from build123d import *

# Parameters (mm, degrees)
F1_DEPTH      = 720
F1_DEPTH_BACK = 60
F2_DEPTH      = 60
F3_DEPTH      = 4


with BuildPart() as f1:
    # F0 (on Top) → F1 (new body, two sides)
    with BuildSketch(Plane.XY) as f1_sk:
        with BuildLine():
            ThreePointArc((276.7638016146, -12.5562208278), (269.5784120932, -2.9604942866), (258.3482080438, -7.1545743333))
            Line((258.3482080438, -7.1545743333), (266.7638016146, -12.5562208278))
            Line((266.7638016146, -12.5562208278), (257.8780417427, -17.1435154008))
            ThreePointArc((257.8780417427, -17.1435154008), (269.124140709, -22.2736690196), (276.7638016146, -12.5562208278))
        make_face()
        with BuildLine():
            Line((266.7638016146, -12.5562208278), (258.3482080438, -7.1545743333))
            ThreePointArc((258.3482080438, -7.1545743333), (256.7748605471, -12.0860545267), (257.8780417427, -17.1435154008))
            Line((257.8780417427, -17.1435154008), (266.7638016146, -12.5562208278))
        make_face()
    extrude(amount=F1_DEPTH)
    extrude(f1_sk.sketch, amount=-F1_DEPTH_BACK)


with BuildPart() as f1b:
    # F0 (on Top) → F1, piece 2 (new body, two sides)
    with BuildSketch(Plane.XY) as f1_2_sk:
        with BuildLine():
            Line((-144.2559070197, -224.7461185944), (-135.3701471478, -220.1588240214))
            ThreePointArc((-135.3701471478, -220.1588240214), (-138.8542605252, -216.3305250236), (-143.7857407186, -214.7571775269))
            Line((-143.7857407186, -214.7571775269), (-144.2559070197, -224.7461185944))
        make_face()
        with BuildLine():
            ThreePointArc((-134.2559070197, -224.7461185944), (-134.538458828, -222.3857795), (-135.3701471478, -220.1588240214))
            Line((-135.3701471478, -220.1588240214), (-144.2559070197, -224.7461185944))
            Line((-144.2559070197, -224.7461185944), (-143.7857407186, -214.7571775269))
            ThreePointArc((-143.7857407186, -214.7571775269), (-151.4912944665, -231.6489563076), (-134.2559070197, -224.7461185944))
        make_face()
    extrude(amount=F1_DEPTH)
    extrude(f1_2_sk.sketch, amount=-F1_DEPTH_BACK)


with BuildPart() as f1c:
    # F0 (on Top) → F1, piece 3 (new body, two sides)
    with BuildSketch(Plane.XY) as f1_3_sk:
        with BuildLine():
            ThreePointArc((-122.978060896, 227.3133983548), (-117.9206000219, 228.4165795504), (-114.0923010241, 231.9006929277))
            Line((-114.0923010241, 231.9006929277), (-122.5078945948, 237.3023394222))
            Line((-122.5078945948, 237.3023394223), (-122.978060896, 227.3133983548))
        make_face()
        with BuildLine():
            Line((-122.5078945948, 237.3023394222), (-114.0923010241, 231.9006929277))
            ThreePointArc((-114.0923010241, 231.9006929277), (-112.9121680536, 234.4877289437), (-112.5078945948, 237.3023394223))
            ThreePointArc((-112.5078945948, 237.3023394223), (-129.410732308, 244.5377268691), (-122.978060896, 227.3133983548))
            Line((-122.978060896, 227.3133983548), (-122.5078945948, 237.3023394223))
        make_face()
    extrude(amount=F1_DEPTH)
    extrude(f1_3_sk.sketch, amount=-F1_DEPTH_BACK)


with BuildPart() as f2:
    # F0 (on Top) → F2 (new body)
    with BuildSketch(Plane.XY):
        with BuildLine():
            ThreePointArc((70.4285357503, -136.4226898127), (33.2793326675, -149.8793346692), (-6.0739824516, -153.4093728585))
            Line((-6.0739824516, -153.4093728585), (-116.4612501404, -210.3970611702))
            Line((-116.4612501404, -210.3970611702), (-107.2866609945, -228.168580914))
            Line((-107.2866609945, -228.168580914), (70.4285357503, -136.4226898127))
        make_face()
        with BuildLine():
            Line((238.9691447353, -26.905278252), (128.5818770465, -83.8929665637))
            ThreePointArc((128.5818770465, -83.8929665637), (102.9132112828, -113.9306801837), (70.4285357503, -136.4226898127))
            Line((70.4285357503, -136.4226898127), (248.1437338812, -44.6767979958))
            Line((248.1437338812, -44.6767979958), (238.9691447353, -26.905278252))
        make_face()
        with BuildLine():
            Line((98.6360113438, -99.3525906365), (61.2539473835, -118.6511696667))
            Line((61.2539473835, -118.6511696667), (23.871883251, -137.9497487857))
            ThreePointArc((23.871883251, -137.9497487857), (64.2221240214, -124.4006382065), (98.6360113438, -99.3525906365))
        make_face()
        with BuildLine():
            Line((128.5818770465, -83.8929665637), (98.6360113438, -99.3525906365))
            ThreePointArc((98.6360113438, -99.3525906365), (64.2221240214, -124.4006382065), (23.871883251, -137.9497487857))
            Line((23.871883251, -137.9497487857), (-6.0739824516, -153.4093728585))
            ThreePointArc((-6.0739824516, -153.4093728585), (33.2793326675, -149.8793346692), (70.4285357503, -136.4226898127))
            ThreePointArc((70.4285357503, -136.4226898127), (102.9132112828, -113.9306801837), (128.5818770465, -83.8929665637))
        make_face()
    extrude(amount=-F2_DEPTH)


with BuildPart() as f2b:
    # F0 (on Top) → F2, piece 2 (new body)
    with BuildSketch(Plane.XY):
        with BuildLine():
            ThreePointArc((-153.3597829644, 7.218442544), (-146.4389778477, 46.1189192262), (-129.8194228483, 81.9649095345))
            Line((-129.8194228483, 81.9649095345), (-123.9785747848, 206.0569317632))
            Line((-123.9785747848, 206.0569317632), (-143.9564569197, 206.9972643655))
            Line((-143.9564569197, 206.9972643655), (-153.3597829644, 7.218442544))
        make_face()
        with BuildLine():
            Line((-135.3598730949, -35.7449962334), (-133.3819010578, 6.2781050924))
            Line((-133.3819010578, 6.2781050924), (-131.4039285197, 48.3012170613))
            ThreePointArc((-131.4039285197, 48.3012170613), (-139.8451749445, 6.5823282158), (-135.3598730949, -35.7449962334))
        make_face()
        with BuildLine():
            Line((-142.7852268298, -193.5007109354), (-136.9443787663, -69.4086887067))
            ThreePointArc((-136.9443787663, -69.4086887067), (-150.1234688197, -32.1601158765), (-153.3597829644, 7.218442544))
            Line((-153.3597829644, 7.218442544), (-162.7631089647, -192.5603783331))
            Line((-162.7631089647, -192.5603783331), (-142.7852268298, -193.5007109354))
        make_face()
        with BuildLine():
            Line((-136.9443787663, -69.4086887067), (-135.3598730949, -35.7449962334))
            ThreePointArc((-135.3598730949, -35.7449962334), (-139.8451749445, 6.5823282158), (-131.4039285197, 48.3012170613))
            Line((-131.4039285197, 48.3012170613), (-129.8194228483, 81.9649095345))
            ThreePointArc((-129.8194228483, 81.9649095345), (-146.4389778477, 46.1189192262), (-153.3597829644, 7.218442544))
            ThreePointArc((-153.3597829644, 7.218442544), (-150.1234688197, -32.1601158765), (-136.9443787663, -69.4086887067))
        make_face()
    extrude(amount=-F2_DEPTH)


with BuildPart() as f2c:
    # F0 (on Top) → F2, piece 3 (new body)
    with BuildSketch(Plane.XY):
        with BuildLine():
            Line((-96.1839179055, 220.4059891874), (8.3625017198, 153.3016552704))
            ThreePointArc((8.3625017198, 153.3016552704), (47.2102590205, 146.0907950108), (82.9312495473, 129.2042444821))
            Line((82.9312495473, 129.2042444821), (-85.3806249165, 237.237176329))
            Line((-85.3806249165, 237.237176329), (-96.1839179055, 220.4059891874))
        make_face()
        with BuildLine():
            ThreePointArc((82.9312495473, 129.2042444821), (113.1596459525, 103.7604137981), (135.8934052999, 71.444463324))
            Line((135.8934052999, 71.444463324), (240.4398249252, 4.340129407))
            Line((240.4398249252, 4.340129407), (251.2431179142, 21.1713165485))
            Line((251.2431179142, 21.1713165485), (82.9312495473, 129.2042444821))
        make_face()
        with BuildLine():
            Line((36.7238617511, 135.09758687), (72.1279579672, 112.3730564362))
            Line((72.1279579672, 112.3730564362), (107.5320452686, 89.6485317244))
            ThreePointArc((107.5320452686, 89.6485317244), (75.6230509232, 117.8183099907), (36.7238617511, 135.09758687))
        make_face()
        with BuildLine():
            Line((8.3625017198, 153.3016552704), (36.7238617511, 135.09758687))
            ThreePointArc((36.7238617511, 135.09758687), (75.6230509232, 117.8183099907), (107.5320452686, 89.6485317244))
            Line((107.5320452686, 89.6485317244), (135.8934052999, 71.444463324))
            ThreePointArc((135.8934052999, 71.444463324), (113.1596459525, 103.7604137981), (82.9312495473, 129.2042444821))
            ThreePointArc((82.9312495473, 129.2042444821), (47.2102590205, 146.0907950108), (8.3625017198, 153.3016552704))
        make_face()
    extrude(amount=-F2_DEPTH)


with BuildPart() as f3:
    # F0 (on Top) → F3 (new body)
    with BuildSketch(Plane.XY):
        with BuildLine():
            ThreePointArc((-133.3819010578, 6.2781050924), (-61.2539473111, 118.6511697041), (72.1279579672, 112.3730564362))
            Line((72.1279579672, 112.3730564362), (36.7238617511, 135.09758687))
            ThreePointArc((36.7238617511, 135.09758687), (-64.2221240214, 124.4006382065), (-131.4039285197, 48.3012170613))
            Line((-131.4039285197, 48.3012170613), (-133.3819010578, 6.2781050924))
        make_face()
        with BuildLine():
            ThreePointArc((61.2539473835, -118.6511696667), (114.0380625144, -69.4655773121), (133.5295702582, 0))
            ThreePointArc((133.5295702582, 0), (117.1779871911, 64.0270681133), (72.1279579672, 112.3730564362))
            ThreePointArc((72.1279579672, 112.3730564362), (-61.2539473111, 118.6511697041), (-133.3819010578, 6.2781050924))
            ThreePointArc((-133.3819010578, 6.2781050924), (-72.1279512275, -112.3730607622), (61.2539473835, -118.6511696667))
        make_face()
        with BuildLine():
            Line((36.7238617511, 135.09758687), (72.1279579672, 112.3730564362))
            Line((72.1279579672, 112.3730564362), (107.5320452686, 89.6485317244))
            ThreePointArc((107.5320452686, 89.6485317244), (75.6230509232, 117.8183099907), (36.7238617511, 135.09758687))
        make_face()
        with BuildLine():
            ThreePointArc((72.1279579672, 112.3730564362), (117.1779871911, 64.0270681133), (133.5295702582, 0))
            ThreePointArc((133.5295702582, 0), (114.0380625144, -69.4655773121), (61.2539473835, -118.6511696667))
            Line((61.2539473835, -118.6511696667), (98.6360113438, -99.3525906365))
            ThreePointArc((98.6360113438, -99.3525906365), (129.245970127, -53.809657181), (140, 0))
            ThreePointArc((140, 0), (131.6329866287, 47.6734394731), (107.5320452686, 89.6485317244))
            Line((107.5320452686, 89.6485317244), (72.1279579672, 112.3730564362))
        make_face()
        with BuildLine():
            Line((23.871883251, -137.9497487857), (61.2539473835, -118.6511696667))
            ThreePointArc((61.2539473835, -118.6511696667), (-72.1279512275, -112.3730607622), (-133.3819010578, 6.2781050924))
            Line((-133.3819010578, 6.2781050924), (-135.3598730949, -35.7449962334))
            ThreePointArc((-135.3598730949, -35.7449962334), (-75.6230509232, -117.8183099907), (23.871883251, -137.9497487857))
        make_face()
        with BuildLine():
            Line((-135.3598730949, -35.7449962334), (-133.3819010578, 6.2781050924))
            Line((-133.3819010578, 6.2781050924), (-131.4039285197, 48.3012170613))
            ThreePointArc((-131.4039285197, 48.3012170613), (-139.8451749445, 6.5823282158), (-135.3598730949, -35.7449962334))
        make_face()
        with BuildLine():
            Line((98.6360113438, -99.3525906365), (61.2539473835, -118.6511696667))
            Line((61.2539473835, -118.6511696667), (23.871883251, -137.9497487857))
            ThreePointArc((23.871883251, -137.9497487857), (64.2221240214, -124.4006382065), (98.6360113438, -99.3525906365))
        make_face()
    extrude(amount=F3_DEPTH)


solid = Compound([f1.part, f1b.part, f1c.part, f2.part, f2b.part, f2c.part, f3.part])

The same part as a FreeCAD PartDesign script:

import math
import FreeCAD as App
import Part
import Sketcher

doc = App.newDocument("Part")
body = doc.addObject("PartDesign::Body", "Body")

sketch1 = body.newObject("Sketcher::SketchObject", "Sketch")
sketch1.AttachmentSupport = (doc.getObject("XY_Plane"), [""])
sketch1.MapMode = "FlatFace"
sketch1.addGeometry(Part.ArcOfCircle(Part.Circle(App.Vector(267, -13, 0), App.Vector(0, 0, 1), 10), math.radians(0), math.radians(207)), False)
sketch1.addGeometry(Part.ArcOfCircle(Part.Circle(App.Vector(267, -13, 0), App.Vector(0, 0, 1), 10), math.radians(-153), math.radians(0)), False)
sketch1.addConstraint(Sketcher.Constraint("Tangent", 0, 1, 1, 2))
sketch1.addConstraint(Sketcher.Constraint("Coincident", 1, 1, 0, 2))
sketch1.addConstraint(Sketcher.Constraint("Horizontal", 1, 3, 0, 1))
sketch1.addConstraint(Sketcher.Constraint("Radius", 0, 10.0))
sketch1.addConstraint(Sketcher.Constraint("DistanceX", -1, 1, 0, 3, 266.763802))
sketch1.addConstraint(Sketcher.Constraint("DistanceY", 0, 3, -1, 1, 12.556221))
sketch1.addConstraint(Sketcher.Constraint("DistanceX", -1, 1, 1, 1, 257.878042))
pad1 = body.newObject("PartDesign::Pad", "Pad")
pad1.Profile = sketch1
pad1.Type = "TwoLengths"
pad1.Length = 720
pad1.Length2 = 60
body2 = doc.addObject("PartDesign::Body", "Body001")

sketch2 = body2.newObject("Sketcher::SketchObject", "Sketch001")
sketch2.AttachmentSupport = (doc.getObject("XY_Plane001"), [""])
sketch2.MapMode = "FlatFace"
sketch2.addGeometry(Part.ArcOfCircle(Part.Circle(App.Vector(-144.3, -224.7, 0), App.Vector(0, 0, 1), 10), math.radians(27), math.radians(87)), False)
sketch2.addGeometry(Part.ArcOfCircle(Part.Circle(App.Vector(-144.3, -224.7, 0), App.Vector(0, 0, 1), 10), math.radians(87), math.radians(360)), False)
sketch2.addGeometry(Part.ArcOfCircle(Part.Circle(App.Vector(-144.3, -224.7, 0), App.Vector(0, 0, 1), 10), math.radians(0), math.radians(27)), False)
sketch2.addConstraint(Sketcher.Constraint("Tangent", 0, 2, 1, 1))
sketch2.addConstraint(Sketcher.Constraint("Tangent", 1, 2, 2, 1))
sketch2.addConstraint(Sketcher.Constraint("Tangent", 2, 2, 0, 1))
sketch2.addConstraint(Sketcher.Constraint("Horizontal", 2, 3, 1, 2))
sketch2.addConstraint(Sketcher.Constraint("Radius", 0, 10.0))
sketch2.addConstraint(Sketcher.Constraint("DistanceY", 0, 3, -1, 1, 224.746119))
sketch2.addConstraint(Sketcher.Constraint("DistanceX", 0, 2, -1, 1, 143.785741))
sketch2.addConstraint(Sketcher.Constraint("DistanceY", 0, 3, 0, 2, 9.988941))
sketch2.addConstraint(Sketcher.Constraint("DistanceX", 2, 2, 1, 2, 1.11424))
pad2 = body2.newObject("PartDesign::Pad", "Pad001")
pad2.Profile = sketch2
pad2.Type = "TwoLengths"
pad2.Length = 720
pad2.Length2 = 60
body3 = doc.addObject("PartDesign::Body", "Body002")

sketch3 = body3.newObject("Sketcher::SketchObject", "Sketch002")
sketch3.AttachmentSupport = (doc.getObject("XY_Plane002"), [""])
sketch3.MapMode = "FlatFace"
sketch3.addGeometry(Part.ArcOfCircle(Part.Circle(App.Vector(-123, 237, 0), App.Vector(0, 0, 1), 10), math.radians(-93), math.radians(-33)), False)
sketch3.addGeometry(Part.ArcOfCircle(Part.Circle(App.Vector(-123, 237, 0), App.Vector(0, 0, 1), 10), math.radians(-33), math.radians(0)), False)
sketch3.addGeometry(Part.ArcOfCircle(Part.Circle(App.Vector(-123, 237, 0), App.Vector(0, 0, 1), 10), math.radians(0), math.radians(267)), False)
sketch3.addConstraint(Sketcher.Constraint("Tangent", 0, 2, 1, 1))
sketch3.addConstraint(Sketcher.Constraint("Tangent", 1, 2, 2, 1))
sketch3.addConstraint(Sketcher.Constraint("Tangent", 2, 2, 0, 1))
sketch3.addConstraint(Sketcher.Constraint("Horizontal", 2, 3, 1, 2))
sketch3.addConstraint(Sketcher.Constraint("Radius", 0, 10.0))
sketch3.addConstraint(Sketcher.Constraint("DistanceX", 0, 2, -1, 1, 114.092301))
sketch3.addConstraint(Sketcher.Constraint("DistanceY", -1, 1, 2, 2, 227.313398))
sketch3.addConstraint(Sketcher.Constraint("DistanceY", -1, 1, 0, 3, 237.302339))
sketch3.addConstraint(Sketcher.Constraint("DistanceX", 2, 2, -1, 1, 122.978061))
pad3 = body3.newObject("PartDesign::Pad", "Pad002")
pad3.Profile = sketch3
pad3.Type = "TwoLengths"
pad3.Length = 720
pad3.Length2 = 60
body4 = doc.addObject("PartDesign::Body", "Body003")

sketch4 = body4.newObject("Sketcher::SketchObject", "Sketch003")
sketch4.AttachmentSupport = (doc.getObject("XY_Plane003"), [""])
sketch4.MapMode = "FlatFace"
sketch4.addGeometry(Part.LineSegment(App.Vector(-6, -153, 0), App.Vector(-116, -210, 0)), False)
sketch4.addGeometry(Part.LineSegment(App.Vector(-116, -210, 0), App.Vector(-107, -228, 0)), False)
sketch4.addGeometry(Part.LineSegment(App.Vector(-107, -228, 0), App.Vector(248, -45, 0)), False)
sketch4.addGeometry(Part.LineSegment(App.Vector(248, -45, 0), App.Vector(239, -27, 0)), False)
sketch4.addGeometry(Part.LineSegment(App.Vector(239, -27, 0), App.Vector(61, -119, 0)), False)
sketch4.addGeometry(Part.LineSegment(App.Vector(61, -119, 0), App.Vector(24, -138, 0)), False)
sketch4.addGeometry(Part.LineSegment(App.Vector(24, -138, 0), App.Vector(-6, -153, 0)), False)
sketch4.addConstraint(Sketcher.Constraint("Coincident", 0, 2, 1, 1))
sketch4.addConstraint(Sketcher.Constraint("Coincident", 1, 2, 2, 1))
sketch4.addConstraint(Sketcher.Constraint("Coincident", 2, 2, 3, 1))
sketch4.addConstraint(Sketcher.Constraint("Coincident", 3, 2, 4, 1))
sketch4.addConstraint(Sketcher.Constraint("Coincident", 4, 2, 5, 1))
sketch4.addConstraint(Sketcher.Constraint("Coincident", 5, 2, 6, 1))
sketch4.addConstraint(Sketcher.Constraint("Coincident", 6, 2, 0, 1))
sketch4.addConstraint(Sketcher.Constraint("Perpendicular", 0, 1))
sketch4.addConstraint(Sketcher.Constraint("Perpendicular", 1, 2))
sketch4.addConstraint(Sketcher.Constraint("Perpendicular", 2, 3))
sketch4.addConstraint(Sketcher.Constraint("Perpendicular", 3, 4))
sketch4.addConstraint(Sketcher.Constraint("Parallel", 4, 5))
sketch4.addConstraint(Sketcher.Constraint("Parallel", 5, 6))
sketch4.addConstraint(Sketcher.Constraint("Distance", 1, 20.0))
sketch4.addConstraint(Sketcher.Constraint("Distance", 2, 400.0))
sketch4.addConstraint(Sketcher.Constraint("Distance", 4, 200.0))
sketch4.addConstraint(Sketcher.Constraint("Distance", 5, 42.069631))
sketch4.addConstraint(Sketcher.Constraint("DistanceX", 0, 2, -1, 1, 116.46125))
sketch4.addConstraint(Sketcher.Constraint("DistanceY", 0, 2, -1, 1, 210.397061))
sketch4.addConstraint(Sketcher.Constraint("DistanceX", 1, 2, -1, 1, 107.286661))
sketch4.addConstraint(Sketcher.Constraint("DistanceX", 6, 2, 4, 2, 67.32793))
pad4 = body4.newObject("PartDesign::Pad", "Pad003")
pad4.Profile = sketch4
pad4.Length = 60
pad4.Reversed = True
body5 = doc.addObject("PartDesign::Body", "Body004")

sketch5 = body5.newObject("Sketcher::SketchObject", "Sketch004")
sketch5.AttachmentSupport = (doc.getObject("XY_Plane004"), [""])
sketch5.MapMode = "FlatFace"
sketch5.addGeometry(Part.LineSegment(App.Vector(-130, 82, 0), App.Vector(-124, 206, 0)), False)
sketch5.addGeometry(Part.LineSegment(App.Vector(-124, 206, 0), App.Vector(-144, 207, 0)), False)
sketch5.addGeometry(Part.LineSegment(App.Vector(-144, 207, 0), App.Vector(-163, -193, 0)), False)
sketch5.addGeometry(Part.LineSegment(App.Vector(-163, -193, 0), App.Vector(-143, -194, 0)), False)
sketch5.addGeometry(Part.LineSegment(App.Vector(-143, -194, 0), App.Vector(-135, -36, 0)), False)
sketch5.addGeometry(Part.LineSegment(App.Vector(-135, -36, 0), App.Vector(-133, 6, 0)), False)
sketch5.addGeometry(Part.LineSegment(App.Vector(-133, 6, 0), App.Vector(-131, 48, 0)), False)
sketch5.addGeometry(Part.LineSegment(App.Vector(-131, 48, 0), App.Vector(-130, 82, 0)), False)
sketch5.addConstraint(Sketcher.Constraint("Coincident", 0, 2, 1, 1))
sketch5.addConstraint(Sketcher.Constraint("Coincident", 1, 2, 2, 1))
sketch5.addConstraint(Sketcher.Constraint("Coincident", 2, 2, 3, 1))
sketch5.addConstraint(Sketcher.Constraint("Coincident", 3, 2, 4, 1))
sketch5.addConstraint(Sketcher.Constraint("Coincident", 4, 2, 5, 1))
sketch5.addConstraint(Sketcher.Constraint("Coincident", 5, 2, 6, 1))
sketch5.addConstraint(Sketcher.Constraint("Coincident", 6, 2, 7, 1))
sketch5.addConstraint(Sketcher.Constraint("Coincident", 7, 2, 0, 1))
sketch5.addConstraint(Sketcher.Constraint("Perpendicular", 0, 1))
sketch5.addConstraint(Sketcher.Constraint("Perpendicular", 1, 2))
sketch5.addConstraint(Sketcher.Constraint("Perpendicular", 2, 3))
sketch5.addConstraint(Sketcher.Constraint("Perpendicular", 3, 4))
sketch5.addConstraint(Sketcher.Constraint("Parallel", 4, 5))
sketch5.addConstraint(Sketcher.Constraint("Parallel", 5, 6))
sketch5.addConstraint(Sketcher.Constraint("Parallel", 6, 7))
sketch5.addConstraint(Sketcher.Constraint("Distance", 1, 20.0))
sketch5.addConstraint(Sketcher.Constraint("Distance", 2, 400.0))
sketch5.addConstraint(Sketcher.Constraint("DistanceX", 5, 2, -1, 1, 133.381901))
sketch5.addConstraint(Sketcher.Constraint("DistanceX", 4, 2, 0, 2, 11.381298))
sketch5.addConstraint(Sketcher.Constraint("DistanceY", 4, 2, 5, 2, 42.023101))
sketch5.addConstraint(Sketcher.Constraint("DistanceX", 3, 2, 6, 2, 11.381298))
sketch5.addConstraint(Sketcher.Constraint("Distance", 4, 157.930369))
sketch5.addConstraint(Sketcher.Constraint("DistanceY", -1, 1, 0, 2, 206.056932))
sketch5.addConstraint(Sketcher.Constraint("DistanceY", -1, 1, 7, 2, 81.96491))
pad5 = body5.newObject("PartDesign::Pad", "Pad004")
pad5.Profile = sketch5
pad5.Length = 60
pad5.Reversed = True
body6 = doc.addObject("PartDesign::Body", "Body005")

sketch6 = body6.newObject("Sketcher::SketchObject", "Sketch005")
sketch6.AttachmentSupport = (doc.getObject("XY_Plane005"), [""])
sketch6.MapMode = "FlatFace"
sketch6.addGeometry(Part.LineSegment(App.Vector(-96, 220, 0), App.Vector(8, 153, 0)), False)
sketch6.addGeometry(Part.LineSegment(App.Vector(8, 153, 0), App.Vector(37, 135, 0)), False)
sketch6.addGeometry(Part.LineSegment(App.Vector(37, 135, 0), App.Vector(108, 90, 0)), False)
sketch6.addGeometry(Part.LineSegment(App.Vector(108, 90, 0), App.Vector(136, 71, 0)), False)
sketch6.addGeometry(Part.LineSegment(App.Vector(136, 71, 0), App.Vector(240, 4, 0)), False)
sketch6.addGeometry(Part.LineSegment(App.Vector(240, 4, 0), App.Vector(251, 21, 0)), False)
sketch6.addGeometry(Part.LineSegment(App.Vector(251, 21, 0), App.Vector(-85, 237, 0)), False)
sketch6.addGeometry(Part.LineSegment(App.Vector(-85, 237, 0), App.Vector(-96, 220, 0)), False)
sketch6.addConstraint(Sketcher.Constraint("Coincident", 0, 2, 1, 1))
sketch6.addConstraint(Sketcher.Constraint("Coincident", 1, 2, 2, 1))
sketch6.addConstraint(Sketcher.Constraint("Coincident", 2, 2, 3, 1))
sketch6.addConstraint(Sketcher.Constraint("Coincident", 3, 2, 4, 1))
sketch6.addConstraint(Sketcher.Constraint("Coincident", 4, 2, 5, 1))
sketch6.addConstraint(Sketcher.Constraint("Coincident", 5, 2, 6, 1))
sketch6.addConstraint(Sketcher.Constraint("Coincident", 6, 2, 7, 1))
sketch6.addConstraint(Sketcher.Constraint("Coincident", 7, 2, 0, 1))
sketch6.addConstraint(Sketcher.Constraint("Parallel", 0, 1))
sketch6.addConstraint(Sketcher.Constraint("Parallel", 1, 2))
sketch6.addConstraint(Sketcher.Constraint("Parallel", 2, 3))
sketch6.addConstraint(Sketcher.Constraint("Parallel", 3, 4))
sketch6.addConstraint(Sketcher.Constraint("Perpendicular", 4, 5))
sketch6.addConstraint(Sketcher.Constraint("Perpendicular", 5, 6))
sketch6.addConstraint(Sketcher.Constraint("Perpendicular", 6, 7))
sketch6.addConstraint(Sketcher.Constraint("Equal", 1, 3))
sketch6.addConstraint(Sketcher.Constraint("Equal", 0, 4))
sketch6.addConstraint(Sketcher.Constraint("Distance", 5, 20.0))
sketch6.addConstraint(Sketcher.Constraint("Distance", 6, 400.0))
sketch6.addConstraint(Sketcher.Constraint("DistanceX", -1, 1, 0, 2, 8.362502))
sketch6.addConstraint(Sketcher.Constraint("DistanceX", -1, 1, 1, 2, 36.723862))
sketch6.addConstraint(Sketcher.Constraint("DistanceY", -1, 1, 2, 2, 89.648532))
sketch6.addConstraint(Sketcher.Constraint("DistanceY", -1, 1, 4, 2, 4.340129))
sketch6.addConstraint(Sketcher.Constraint("DistanceY", -1, 1, 7, 2, 220.405989))
pad6 = body6.newObject("PartDesign::Pad", "Pad005")
pad6.Profile = sketch6
pad6.Length = 60
pad6.Reversed = True
body7 = doc.addObject("PartDesign::Body", "Body006")

sketch7 = body7.newObject("Sketcher::SketchObject", "Sketch006")
sketch7.AttachmentSupport = (doc.getObject("XY_Plane006"), [""])
sketch7.MapMode = "FlatFace"
sketch7.addGeometry(Part.ArcOfCircle(Part.Circle(App.Vector(0, 0, 0), App.Vector(0, 0, 1), 140), math.radians(75), math.radians(160)), False)
sketch7.addGeometry(Part.ArcOfCircle(Part.Circle(App.Vector(0, 0, 0), App.Vector(0, 0, 1), 140), math.radians(160), math.radians(315)), False)
sketch7.addGeometry(Part.ArcOfCircle(Part.Circle(App.Vector(0, 0, 0), App.Vector(0, 0, 1), 140), math.radians(-45), math.radians(40)), False)
sketch7.addGeometry(Part.ArcOfCircle(Part.Circle(App.Vector(0, 0, 0), App.Vector(0, 0, 1), 140), math.radians(40), math.radians(75)), False)
sketch7.addConstraint(Sketcher.Constraint("Tangent", 0, 2, 1, 1))
sketch7.addConstraint(Sketcher.Constraint("Tangent", 1, 2, 2, 1))
sketch7.addConstraint(Sketcher.Constraint("Tangent", 2, 2, 3, 1))
sketch7.addConstraint(Sketcher.Constraint("Tangent", 3, 2, 0, 1))
sketch7.addConstraint(Sketcher.Constraint("Coincident", 0, 3, -1, 1))
sketch7.addConstraint(Sketcher.Constraint("Equal", 0, 1))
sketch7.addConstraint(Sketcher.Constraint("Radius", 0, 140.0))
sketch7.addConstraint(Sketcher.Constraint("DistanceX", 0, 2, -1, 1, 131.403929))
sketch7.addConstraint(Sketcher.Constraint("DistanceX", -1, 1, 1, 2, 98.636011))
sketch7.addConstraint(Sketcher.Constraint("DistanceY", -1, 1, 2, 2, 89.648532))
sketch7.addConstraint(Sketcher.Constraint("DistanceX", -1, 1, 3, 2, 36.723862))
pad7 = body7.newObject("PartDesign::Pad", "Pad006")
pad7.Profile = sketch7
pad7.Length = 4

doc.recompute()
